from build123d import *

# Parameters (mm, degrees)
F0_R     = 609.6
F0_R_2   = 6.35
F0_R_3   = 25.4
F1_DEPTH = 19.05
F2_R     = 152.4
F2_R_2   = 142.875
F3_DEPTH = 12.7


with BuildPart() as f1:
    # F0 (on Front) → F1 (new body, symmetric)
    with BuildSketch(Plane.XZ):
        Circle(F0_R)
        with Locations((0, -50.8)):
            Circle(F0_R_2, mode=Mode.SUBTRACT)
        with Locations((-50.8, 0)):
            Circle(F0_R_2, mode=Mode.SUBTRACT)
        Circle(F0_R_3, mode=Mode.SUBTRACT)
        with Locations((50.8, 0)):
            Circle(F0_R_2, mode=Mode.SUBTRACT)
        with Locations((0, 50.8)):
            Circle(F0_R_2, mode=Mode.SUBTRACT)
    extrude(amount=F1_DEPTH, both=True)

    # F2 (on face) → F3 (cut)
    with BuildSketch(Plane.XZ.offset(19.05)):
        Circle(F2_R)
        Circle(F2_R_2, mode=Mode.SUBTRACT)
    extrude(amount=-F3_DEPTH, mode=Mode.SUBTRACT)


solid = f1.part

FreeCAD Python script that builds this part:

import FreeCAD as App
import Part
import Sketcher

V = App.Vector
Q = App.Units.Quantity

doc = App.newDocument("Part")
body = doc.addObject("PartDesign::Body", "Body")

# Sketch on XZ plane
sketch1 = body.newObject("Sketcher::SketchObject", "Sketch")
sketch1.AttachmentSupport = (doc.getObject("XZ_Plane"), [""])
sketch1.MapMode = "FlatFace"
sketch1.addGeometry([
    Part.Circle(V(0, 0, 0), V(0, 0, 1), 609.6),  # 0
    Part.Circle(V(0, -50.8, 0), V(0, 0, 1), 6.35),  # 1
    Part.Circle(V(-50.8, 0, 0), V(0, 0, 1), 6.35),  # 2
    Part.Circle(V(0, 0, 0), V(0, 0, 1), 25.4),  # 3
    Part.Circle(V(50.8, 0, 0), V(0, 0, 1), 6.35),  # 4
    Part.Circle(V(0, 50.8, 0), V(0, 0, 1), 6.35),  # 5
], False)
sketch1.addConstraint([
    Sketcher.Constraint("Coincident", 0, 3, -1, 1),
    Sketcher.Constraint("Coincident", 3, 3, -1, 1),
    Sketcher.Constraint("Equal", 1, 2),
    Sketcher.Constraint("Equal", 2, 4),
    Sketcher.Constraint("Equal", 4, 5),
    Sketcher.Constraint("Symmetric", 2, 3, 4, 3, -1, 1),
    Sketcher.Constraint("Symmetric", 1, 3, 5, 3, -1, 1),
    Sketcher.Constraint("PointOnObject", 1, 3, -2),
    Sketcher.Constraint("PointOnObject", 2, 3, -1),
    Sketcher.Constraint("Diameter", 0, Q("48 in")),
    Sketcher.Constraint("Diameter", 3, Q("2 in")),
    Sketcher.Constraint("Diameter", 1, Q("0.5 in")),
    Sketcher.Constraint("DistanceY", 1, 3, -1, 1, Q("2 in")),
    Sketcher.Constraint("DistanceX", 2, 3, -1, 1, Q("2 in")),
])
pad1 = body.newObject("PartDesign::Pad", "Pad")
pad1.Profile = sketch1
pad1.Length = Q("1.5 in")
pad1.Midplane = True

# Sketch on XZ plane
sketch2 = body.newObject("Sketcher::SketchObject", "Sketch001")
sketch2.AttachmentSupport = (doc.getObject("XZ_Plane"), [""])
sketch2.MapMode = "FlatFace"
sketch2.AttachmentOffset = App.Placement(V(0, 0, 0.75 * 25.4), App.Rotation())
sketch2.addGeometry([
    Part.Circle(V(0, 0, 0), V(0, 0, 1), 152.4),
    Part.Circle(V(0, 0, 0), V(0, 0, 1), 142.875),
], False)
sketch2.addConstraint([
    Sketcher.Constraint("Coincident", 0, 3, -1, 1),
    Sketcher.Constraint("Coincident", 1, 3, -1, 1),
    Sketcher.Constraint("Diameter", 0, Q("12 in")),
    Sketcher.Constraint("Diameter", 1, Q("11.25 in")),
])
pocket1 = body.newObject("PartDesign::Pocket", "Pocket")
pocket1.Profile = sketch2
pocket1.Length = Q("0.5 in")

doc.recompute()
